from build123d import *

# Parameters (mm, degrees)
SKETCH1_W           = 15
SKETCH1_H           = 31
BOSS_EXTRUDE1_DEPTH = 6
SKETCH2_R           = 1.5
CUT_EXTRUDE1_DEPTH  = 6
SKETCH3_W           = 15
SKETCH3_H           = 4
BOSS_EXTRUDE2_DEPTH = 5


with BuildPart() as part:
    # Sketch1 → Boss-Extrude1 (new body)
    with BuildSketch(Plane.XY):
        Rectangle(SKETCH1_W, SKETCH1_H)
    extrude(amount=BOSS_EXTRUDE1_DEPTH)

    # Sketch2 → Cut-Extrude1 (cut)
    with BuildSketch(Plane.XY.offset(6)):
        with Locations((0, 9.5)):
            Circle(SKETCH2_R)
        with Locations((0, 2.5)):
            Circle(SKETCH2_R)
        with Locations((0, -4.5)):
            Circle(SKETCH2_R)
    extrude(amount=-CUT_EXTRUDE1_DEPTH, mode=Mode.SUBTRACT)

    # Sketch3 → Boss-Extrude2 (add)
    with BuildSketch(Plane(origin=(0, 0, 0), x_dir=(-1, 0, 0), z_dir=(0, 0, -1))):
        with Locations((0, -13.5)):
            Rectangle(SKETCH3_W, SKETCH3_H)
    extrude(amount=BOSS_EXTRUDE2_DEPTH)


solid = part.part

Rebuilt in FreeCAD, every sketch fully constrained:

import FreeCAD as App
import Part
import Sketcher
Q = App.Units.Quantity

doc = App.newDocument("Part")
body = doc.addObject("PartDesign::Body", "Body")

# Sketch on XY plane
sketch1 = body.newObject("Sketcher::SketchObject", "Sketch")
sketch1.AttachmentSupport = (doc.getObject("XY_Plane"), [""])
sketch1.MapMode = "FlatFace"
sketch1.addGeometry(Part.LineSegment(App.Vector(-8, 16, 0), App.Vector(-8, -16, 0)), False)
sketch1.addGeometry(Part.LineSegment(App.Vector(-8, -16, 0), App.Vector(8, -16, 0)), False)
sketch1.addGeometry(Part.LineSegment(App.Vector(8, -16, 0), App.Vector(8, 16, 0)), False)
sketch1.addGeometry(Part.LineSegment(App.Vector(8, 16, 0), App.Vector(-8, 16, 0)), False)
sketch1.addConstraint(Sketcher.Constraint("Coincident", 0, 2, 1, 1))
sketch1.addConstraint(Sketcher.Constraint("Coincident", 1, 2, 2, 1))
sketch1.addConstraint(Sketcher.Constraint("Coincident", 2, 2, 3, 1))
sketch1.addConstraint(Sketcher.Constraint("Coincident", 3, 2, 0, 1))
sketch1.addConstraint(Sketcher.Constraint("Vertical", 0))
sketch1.addConstraint(Sketcher.Constraint("Horizontal", 1))
sketch1.addConstraint(Sketcher.Constraint("Vertical", 2))
sketch1.addConstraint(Sketcher.Constraint("Horizontal", 3))
sketch1.addConstraint(Sketcher.Constraint("Symmetric", 0, 2, 2, 2, -1, 1))
sketch1.addConstraint(Sketcher.Constraint("DistanceX", 1, 1, 1, 2, Q("15 mm")))
sketch1.addConstraint(Sketcher.Constraint("DistanceY", 0, 2, 0, 1, Q("31 mm")))
pad1 = body.newObject("PartDesign::Pad", "Pad")
pad1.Profile = sketch1
pad1.Length = 6

# Sketch on XY plane
sketch2 = body.newObject("Sketcher::SketchObject", "Sketch001")
sketch2.AttachmentSupport = (doc.getObject("XY_Plane"), [""])
sketch2.MapMode = "FlatFace"
sketch2.AttachmentOffset = App.Placement(App.Vector(0, 0, 6), App.Rotation())
sketch2.addGeometry(Part.Circle(App.Vector(0, 9.5, 0), App.Vector(0, 0, 1), 1.5), False)
sketch2.addGeometry(Part.Circle(App.Vector(0, 2.5, 0), App.Vector(0, 0, 1), 1.5), False)
sketch2.addGeometry(Part.Circle(App.Vector(0, -4.5, 0), App.Vector(0, 0, 1), 1.5), False)
sketch2.addConstraint(Sketcher.Constraint("Equal", 0, 1))
sketch2.addConstraint(Sketcher.Constraint("Equal", 1, 2))
sketch2.addConstraint(Sketcher.Constraint("PointOnObject", 0, 3, -2))
sketch2.addConstraint(Sketcher.Constraint("PointOnObject", 1, 3, -2))
sketch2.addConstraint(Sketcher.Constraint("PointOnObject", 2, 3, -2))
sketch2.addConstraint(Sketcher.Constraint("Diameter", 0, Q("3 mm")))
sketch2.addConstraint(Sketcher.Constraint("DistanceY", 1, 3, 0, 3, Q("7 mm")))
sketch2.addConstraint(Sketcher.Constraint("DistanceY", 2, 3, 1, 3, Q("7 mm")))
sketch2.addConstraint(Sketcher.Constraint("DistanceY", -1, 1, 0, 3, Q("9.5 mm")))
pocket1 = body.newObject("PartDesign::Pocket", "Pocket")
pocket1.Profile = sketch2
pocket1.Length = 6

# Sketch on XY plane
sketch3 = body.newObject("Sketcher::SketchObject", "Sketch002")
sketch3.AttachmentSupport = (doc.getObject("XY_Plane"), [""])
sketch3.MapMode = "FlatFace"
sketch3.addGeometry(Part.LineSegment(App.Vector(7.5, -11.5, 0), App.Vector(7.5, -15.5, 0)), False)
sketch3.addGeometry(Part.LineSegment(App.Vector(7.5, -15.5, 0), App.Vector(-7.5, -15.5, 0)), False)
sketch3.addGeometry(Part.LineSegment(App.Vector(-7.5, -15.5, 0), App.Vector(-7.5, -11.5, 0)), False)
sketch3.addGeometry(Part.LineSegment(App.Vector(-7.5, -11.5, 0), App.Vector(7.5, -11.5, 0)), False)
sketch3.addConstraint(Sketcher.Constraint("Coincident", 0, 2, 1, 1))
sketch3.addConstraint(Sketcher.Constraint("Coincident", 1, 2, 2, 1))
sketch3.addConstraint(Sketcher.Constraint("Coincident", 2, 2, 3, 1))
sketch3.addConstraint(Sketcher.Constraint("Coincident", 3, 2, 0, 1))
sketch3.addConstraint(Sketcher.Constraint("Vertical", 0))
sketch3.addConstraint(Sketcher.Constraint("Horizontal", 1))
sketch3.addConstraint(Sketcher.Constraint("Vertical", 2))
sketch3.addConstraint(Sketcher.Constraint("Horizontal", 3))
sketch3.addConstraint(Sketcher.Constraint("DistanceX", 1, 2, 1, 1, Q("15 mm")))
sketch3.addConstraint(Sketcher.Constraint("DistanceY", 0, 2, 0, 1, Q("4 mm")))
sketch3.addConstraint(Sketcher.Constraint("DistanceX", -1, 1, 0, 2, Q("7.5 mm")))
sketch3.addConstraint(Sketcher.Constraint("DistanceY", 0, 2, -1, 1, Q("15.5 mm")))
pad2 = body.newObject("PartDesign::Pad", "Pad001")
pad2.Profile = sketch3
pad2.Length = 5
pad2.Reversed = True

doc.recompute()
